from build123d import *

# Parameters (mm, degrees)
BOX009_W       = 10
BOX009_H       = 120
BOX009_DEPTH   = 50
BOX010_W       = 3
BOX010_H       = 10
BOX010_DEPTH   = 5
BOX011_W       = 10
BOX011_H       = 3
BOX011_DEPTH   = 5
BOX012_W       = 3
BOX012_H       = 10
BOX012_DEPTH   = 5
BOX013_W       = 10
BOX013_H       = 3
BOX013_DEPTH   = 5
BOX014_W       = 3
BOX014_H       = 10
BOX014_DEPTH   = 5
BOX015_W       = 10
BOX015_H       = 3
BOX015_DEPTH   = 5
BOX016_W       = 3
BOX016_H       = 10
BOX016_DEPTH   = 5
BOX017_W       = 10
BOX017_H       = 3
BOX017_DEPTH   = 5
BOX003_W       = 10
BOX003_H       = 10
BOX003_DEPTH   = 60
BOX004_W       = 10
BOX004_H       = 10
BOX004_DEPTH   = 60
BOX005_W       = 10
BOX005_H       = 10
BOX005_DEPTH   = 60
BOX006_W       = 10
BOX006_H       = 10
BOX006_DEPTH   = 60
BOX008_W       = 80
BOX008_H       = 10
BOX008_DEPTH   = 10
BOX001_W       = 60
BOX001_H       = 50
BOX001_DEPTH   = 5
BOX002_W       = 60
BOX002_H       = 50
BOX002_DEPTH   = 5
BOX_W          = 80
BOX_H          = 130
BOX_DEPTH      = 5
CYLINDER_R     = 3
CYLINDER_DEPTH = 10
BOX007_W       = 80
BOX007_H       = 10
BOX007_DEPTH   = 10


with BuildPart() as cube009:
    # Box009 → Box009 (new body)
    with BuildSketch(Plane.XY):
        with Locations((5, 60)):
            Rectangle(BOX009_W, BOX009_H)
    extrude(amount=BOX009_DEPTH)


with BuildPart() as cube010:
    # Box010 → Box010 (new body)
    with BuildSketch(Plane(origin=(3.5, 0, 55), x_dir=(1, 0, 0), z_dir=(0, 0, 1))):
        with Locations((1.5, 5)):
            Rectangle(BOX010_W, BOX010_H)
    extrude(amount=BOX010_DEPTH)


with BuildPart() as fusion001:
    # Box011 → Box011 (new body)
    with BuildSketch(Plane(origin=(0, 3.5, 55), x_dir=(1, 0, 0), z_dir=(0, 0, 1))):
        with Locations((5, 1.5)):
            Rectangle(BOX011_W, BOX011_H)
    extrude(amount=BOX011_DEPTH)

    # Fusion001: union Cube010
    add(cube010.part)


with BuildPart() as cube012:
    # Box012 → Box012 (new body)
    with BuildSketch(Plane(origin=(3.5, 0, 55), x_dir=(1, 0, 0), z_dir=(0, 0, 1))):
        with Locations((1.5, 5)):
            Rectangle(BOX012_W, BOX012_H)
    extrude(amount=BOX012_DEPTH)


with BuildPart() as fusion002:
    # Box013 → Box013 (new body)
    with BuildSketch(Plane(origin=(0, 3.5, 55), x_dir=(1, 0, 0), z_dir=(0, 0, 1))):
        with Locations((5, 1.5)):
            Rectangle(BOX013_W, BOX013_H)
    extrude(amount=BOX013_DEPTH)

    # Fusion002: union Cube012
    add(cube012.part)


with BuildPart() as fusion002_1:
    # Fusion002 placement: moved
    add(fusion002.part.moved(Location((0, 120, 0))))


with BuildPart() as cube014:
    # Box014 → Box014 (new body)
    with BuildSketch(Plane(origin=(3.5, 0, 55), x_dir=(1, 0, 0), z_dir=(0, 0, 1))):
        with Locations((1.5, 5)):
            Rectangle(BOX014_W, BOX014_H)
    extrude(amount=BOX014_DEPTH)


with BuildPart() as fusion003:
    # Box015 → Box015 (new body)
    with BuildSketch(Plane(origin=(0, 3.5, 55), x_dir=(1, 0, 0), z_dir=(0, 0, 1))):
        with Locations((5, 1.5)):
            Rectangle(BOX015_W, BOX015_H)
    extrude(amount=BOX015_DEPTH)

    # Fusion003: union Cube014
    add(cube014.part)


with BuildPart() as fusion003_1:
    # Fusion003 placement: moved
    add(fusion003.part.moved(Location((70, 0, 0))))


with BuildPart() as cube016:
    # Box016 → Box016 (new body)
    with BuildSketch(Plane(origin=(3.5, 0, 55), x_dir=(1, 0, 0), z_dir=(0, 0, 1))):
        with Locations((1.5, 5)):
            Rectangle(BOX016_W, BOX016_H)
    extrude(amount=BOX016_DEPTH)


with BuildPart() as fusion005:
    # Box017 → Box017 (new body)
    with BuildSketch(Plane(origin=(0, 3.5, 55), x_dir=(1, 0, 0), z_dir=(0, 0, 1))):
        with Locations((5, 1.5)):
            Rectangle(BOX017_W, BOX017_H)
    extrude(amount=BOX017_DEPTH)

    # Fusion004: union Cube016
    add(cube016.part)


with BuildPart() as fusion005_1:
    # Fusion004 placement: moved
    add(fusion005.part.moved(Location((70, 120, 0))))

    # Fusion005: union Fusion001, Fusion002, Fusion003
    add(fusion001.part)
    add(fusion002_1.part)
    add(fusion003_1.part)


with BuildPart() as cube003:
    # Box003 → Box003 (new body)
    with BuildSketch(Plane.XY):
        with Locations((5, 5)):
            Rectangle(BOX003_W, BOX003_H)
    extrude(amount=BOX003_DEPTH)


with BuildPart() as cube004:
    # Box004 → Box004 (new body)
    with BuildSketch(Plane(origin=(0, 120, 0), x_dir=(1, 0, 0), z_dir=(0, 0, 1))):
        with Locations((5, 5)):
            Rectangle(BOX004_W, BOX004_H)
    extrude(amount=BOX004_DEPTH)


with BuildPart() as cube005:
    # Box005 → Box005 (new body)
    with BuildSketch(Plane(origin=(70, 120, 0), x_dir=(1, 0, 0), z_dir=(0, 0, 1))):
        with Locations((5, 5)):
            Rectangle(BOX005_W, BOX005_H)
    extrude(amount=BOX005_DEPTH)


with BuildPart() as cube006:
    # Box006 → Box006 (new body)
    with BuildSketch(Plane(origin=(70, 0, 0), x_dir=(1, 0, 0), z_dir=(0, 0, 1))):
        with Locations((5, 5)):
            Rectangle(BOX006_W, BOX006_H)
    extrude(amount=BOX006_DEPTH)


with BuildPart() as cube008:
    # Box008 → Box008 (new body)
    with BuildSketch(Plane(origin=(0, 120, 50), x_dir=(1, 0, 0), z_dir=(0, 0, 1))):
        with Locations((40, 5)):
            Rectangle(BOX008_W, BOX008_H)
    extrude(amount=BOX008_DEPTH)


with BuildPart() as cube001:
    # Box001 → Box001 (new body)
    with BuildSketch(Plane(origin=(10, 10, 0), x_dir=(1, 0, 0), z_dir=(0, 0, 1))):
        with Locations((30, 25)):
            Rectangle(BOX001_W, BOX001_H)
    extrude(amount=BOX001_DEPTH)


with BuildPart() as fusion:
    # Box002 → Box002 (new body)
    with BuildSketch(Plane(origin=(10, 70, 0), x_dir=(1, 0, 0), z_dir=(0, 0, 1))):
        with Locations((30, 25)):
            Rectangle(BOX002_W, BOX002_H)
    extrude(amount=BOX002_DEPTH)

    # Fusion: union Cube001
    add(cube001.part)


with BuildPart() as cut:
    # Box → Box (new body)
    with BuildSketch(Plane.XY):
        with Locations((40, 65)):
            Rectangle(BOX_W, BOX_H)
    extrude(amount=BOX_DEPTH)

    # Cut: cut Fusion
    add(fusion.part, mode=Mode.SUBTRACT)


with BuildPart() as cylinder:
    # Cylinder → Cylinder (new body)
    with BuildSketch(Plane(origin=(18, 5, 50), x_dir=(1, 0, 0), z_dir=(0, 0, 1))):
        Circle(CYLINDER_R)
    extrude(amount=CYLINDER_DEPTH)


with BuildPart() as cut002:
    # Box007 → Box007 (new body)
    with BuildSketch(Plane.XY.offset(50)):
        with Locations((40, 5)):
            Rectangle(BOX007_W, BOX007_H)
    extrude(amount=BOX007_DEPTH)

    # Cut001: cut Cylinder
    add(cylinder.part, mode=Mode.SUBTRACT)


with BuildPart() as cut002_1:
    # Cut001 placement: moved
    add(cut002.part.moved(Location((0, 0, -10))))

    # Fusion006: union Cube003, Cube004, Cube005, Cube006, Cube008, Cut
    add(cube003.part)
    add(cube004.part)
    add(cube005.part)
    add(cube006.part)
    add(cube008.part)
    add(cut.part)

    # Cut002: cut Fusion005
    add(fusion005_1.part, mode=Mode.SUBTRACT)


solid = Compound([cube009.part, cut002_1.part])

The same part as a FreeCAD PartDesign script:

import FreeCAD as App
import Part
import Sketcher

V = App.Vector


def add_polygon(sketch, points):
    """Adds a closed chain of lines whose ends are joined by coincident constraints."""
    first, n = sketch.GeometryCount, len(points)
    for a, b in zip(points, points[1:] + points[:1]):
        sketch.addGeometry(Part.LineSegment(App.Vector(*a, 0), App.Vector(*b, 0)), False)
    for i in range(n):
        sketch.addConstraint(Sketcher.Constraint("Coincident", first + i, 2, first + (i + 1) % n, 1))

doc = App.newDocument("Part")
body = doc.addObject("PartDesign::Body", "Body")

sketch1 = doc.addObject("Sketcher::SketchObject", "Sketch")
body.addObject(sketch1)
sketch1.AttachmentSupport = (doc.XY_Plane, [""])
sketch1.MapMode = "FlatFace"
add_polygon(sketch1, [(0, 120), (0, 0), (10, 0), (10, 120)])
sketch1.addConstraint([
    Sketcher.Constraint("Vertical", 0),
    Sketcher.Constraint("Horizontal", 1),
    Sketcher.Constraint("Vertical", 2),
    Sketcher.Constraint("Horizontal", 3),
    Sketcher.Constraint("Coincident", 0, 2, -1, 1),
    Sketcher.Constraint("DistanceX", 1, 1, 1, 2, 10.0),
    Sketcher.Constraint("DistanceY", 0, 2, 0, 1, 120.0),
])
pad1 = doc.addObject("PartDesign::Pad", "Pad")
body.addObject(pad1)
pad1.Profile = sketch1
pad1.Length = 50
body2 = doc.addObject("PartDesign::Body", "Body001")

sketch2 = doc.addObject("Sketcher::SketchObject", "Sketch001")
body2.addObject(sketch2)
sketch2.AttachmentSupport = (doc.getObject("XY_Plane001"), [""])
sketch2.MapMode = "FlatFace"
sketch2.AttachmentOffset = App.Placement(V(0, 0, 55), App.Rotation())
add_polygon(sketch2, [(3.5, 10), (3.5, 0), (6.5, 0), (6.5, 10)])
sketch2.addConstraint([
    Sketcher.Constraint("Vertical", 0),
    Sketcher.Constraint("Horizontal", 1),
    Sketcher.Constraint("Vertical", 2),
    Sketcher.Constraint("Horizontal", 3),
    Sketcher.Constraint("PointOnObject", 0, 2, -1),
    Sketcher.Constraint("DistanceX", 1, 1, 1, 2, 3.0),
    Sketcher.Constraint("DistanceY", 0, 2, 0, 1, 10.0),
    Sketcher.Constraint("DistanceX", -1, 1, 0, 2, 3.5),
])
pad2 = doc.addObject("PartDesign::Pad", "Pad001")
body2.addObject(pad2)
pad2.Profile = sketch2
pad2.Length = 5
body3 = doc.addObject("PartDesign::Body", "Body002")

sketch3 = doc.addObject("Sketcher::SketchObject", "Sketch002")
body3.addObject(sketch3)
sketch3.AttachmentSupport = (doc.getObject("XY_Plane002"), [""])
sketch3.MapMode = "FlatFace"
sketch3.AttachmentOffset = App.Placement(V(0, 0, 55), App.Rotation())
add_polygon(sketch3, [(0, 6.5), (0, 3.5), (10, 3.5), (10, 6.5)])
sketch3.addConstraint([
    Sketcher.Constraint("Vertical", 0),
    Sketcher.Constraint("Horizontal", 1),
    Sketcher.Constraint("Vertical", 2),
    Sketcher.Constraint("Horizontal", 3),
    Sketcher.Constraint("PointOnObject", 0, 2, -2),
    Sketcher.Constraint("DistanceX", 1, 1, 1, 2, 10.0),
    Sketcher.Constraint("DistanceY", 0, 2, 0, 1, 3.0),
    Sketcher.Constraint("DistanceY", -1, 1, 0, 2, 3.5),
])
pad3 = doc.addObject("PartDesign::Pad", "Pad002")
body3.addObject(pad3)
pad3.Profile = sketch3
pad3.Length = 5
doc.recompute()

boolean = doc.addObject("PartDesign::Boolean", "Boolean")
body3.addObject(boolean)
boolean.Type = "Fuse"
boolean.addObjects([body2])
body4 = doc.addObject("PartDesign::Body", "Body003")

sketch4 = doc.addObject("Sketcher::SketchObject", "Sketch003")
body4.addObject(sketch4)
sketch4.AttachmentSupport = (doc.getObject("XY_Plane003"), [""])
sketch4.MapMode = "FlatFace"
sketch4.AttachmentOffset = App.Placement(V(0, 0, 55), App.Rotation())
add_polygon(sketch4, [(3.5, 10), (3.5, 0), (6.5, 0), (6.5, 10)])
sketch4.addConstraint([
    Sketcher.Constraint("Vertical", 0),
    Sketcher.Constraint("Horizontal", 1),
    Sketcher.Constraint("Vertical", 2),
    Sketcher.Constraint("Horizontal", 3),
    Sketcher.Constraint("PointOnObject", 0, 2, -1),
    Sketcher.Constraint("DistanceX", 1, 1, 1, 2, 3.0),
    Sketcher.Constraint("DistanceY", 0, 2, 0, 1, 10.0),
    Sketcher.Constraint("DistanceX", -1, 1, 0, 2, 3.5),
])
pad4 = doc.addObject("PartDesign::Pad", "Pad003")
body4.addObject(pad4)
pad4.Profile = sketch4
pad4.Length = 5
body5 = doc.addObject("PartDesign::Body", "Body004")

sketch5 = doc.addObject("Sketcher::SketchObject", "Sketch004")
body5.addObject(sketch5)
sketch5.AttachmentSupport = (doc.getObject("XY_Plane004"), [""])
sketch5.MapMode = "FlatFace"
sketch5.AttachmentOffset = App.Placement(V(0, 0, 55), App.Rotation())
add_polygon(sketch5, [(0, 6.5), (0, 3.5), (10, 3.5), (10, 6.5)])
sketch5.addConstraint([
    Sketcher.Constraint("Vertical", 0),
    Sketcher.Constraint("Horizontal", 1),
    Sketcher.Constraint("Vertical", 2),
    Sketcher.Constraint("Horizontal", 3),
    Sketcher.Constraint("PointOnObject", 0, 2, -2),
    Sketcher.Constraint("DistanceX", 1, 1, 1, 2, 10.0),
    Sketcher.Constraint("DistanceY", 0, 2, 0, 1, 3.0),
    Sketcher.Constraint("DistanceY", -1, 1, 0, 2, 3.5),
])
pad5 = doc.addObject("PartDesign::Pad", "Pad004")
body5.addObject(pad5)
pad5.Profile = sketch5
pad5.Length = 5
doc.recompute()

boolean2 = doc.addObject("PartDesign::Boolean", "Boolean001")
body5.addObject(boolean2)
boolean2.Type = "Fuse"
boolean2.addObjects([body4])
body6 = doc.addObject("PartDesign::Body", "Body005")
doc.recompute()

body5.Placement = App.Placement(V(0, 120, 0), App.Rotation(V(0, 0, 1), 0))
boolean3 = doc.addObject("PartDesign::Boolean", "Boolean002")
body6.addObject(boolean3)
boolean3.Type = "Fuse"
boolean3.addObjects([body5])
body7 = doc.addObject("PartDesign::Body", "Body006")

sketch6 = doc.addObject("Sketcher::SketchObject", "Sketch005")
body7.addObject(sketch6)
sketch6.AttachmentSupport = (doc.getObject("XY_Plane006"), [""])
sketch6.MapMode = "FlatFace"
sketch6.AttachmentOffset = App.Placement(V(0, 0, 55), App.Rotation())
add_polygon(sketch6, [(3.5, 10), (3.5, 0), (6.5, 0), (6.5, 10)])
sketch6.addConstraint([
    Sketcher.Constraint("Vertical", 0),
    Sketcher.Constraint("Horizontal", 1),
    Sketcher.Constraint("Vertical", 2),
    Sketcher.Constraint("Horizontal", 3),
    Sketcher.Constraint("PointOnObject", 0, 2, -1),
    Sketcher.Constraint("DistanceX", 1, 1, 1, 2, 3.0),
    Sketcher.Constraint("DistanceY", 0, 2, 0, 1, 10.0),
    Sketcher.Constraint("DistanceX", -1, 1, 0, 2, 3.5),
])
pad6 = doc.addObject("PartDesign::Pad", "Pad005")
body7.addObject(pad6)
pad6.Profile = sketch6
pad6.Length = 5
body8 = doc.addObject("PartDesign::Body", "Body007")

sketch7 = doc.addObject("Sketcher::SketchObject", "Sketch006")
body8.addObject(sketch7)
sketch7.AttachmentSupport = (doc.getObject("XY_Plane007"), [""])
sketch7.MapMode = "FlatFace"
sketch7.AttachmentOffset = App.Placement(V(0, 0, 55), App.Rotation())
add_polygon(sketch7, [(0, 6.5), (0, 3.5), (10, 3.5), (10, 6.5)])
sketch7.addConstraint([
    Sketcher.Constraint("Vertical", 0),
    Sketcher.Constraint("Horizontal", 1),
    Sketcher.Constraint("Vertical", 2),
    Sketcher.Constraint("Horizontal", 3),
    Sketcher.Constraint("PointOnObject", 0, 2, -2),
    Sketcher.Constraint("DistanceX", 1, 1, 1, 2, 10.0),
    Sketcher.Constraint("DistanceY", 0, 2, 0, 1, 3.0),
    Sketcher.Constraint("DistanceY", -1, 1, 0, 2, 3.5),
])
pad7 = doc.addObject("PartDesign::Pad", "Pad006")
body8.addObject(pad7)
pad7.Profile = sketch7
pad7.Length = 5
doc.recompute()

boolean4 = doc.addObject("PartDesign::Boolean", "Boolean003")
body8.addObject(boolean4)
boolean4.Type = "Fuse"
boolean4.addObjects([body7])
body9 = doc.addObject("PartDesign::Body", "Body008")
doc.recompute()

body8.Placement = App.Placement(V(70, 0, 0), App.Rotation(V(0, 0, 1), 0))
boolean5 = doc.addObject("PartDesign::Boolean", "Boolean004")
body9.addObject(boolean5)
boolean5.Type = "Fuse"
boolean5.addObjects([body8])
body10 = doc.addObject("PartDesign::Body", "Body009")

sketch8 = doc.addObject("Sketcher::SketchObject", "Sketch007")
body10.addObject(sketch8)
sketch8.AttachmentSupport = (doc.getObject("XY_Plane009"), [""])
sketch8.MapMode = "FlatFace"
sketch8.AttachmentOffset = App.Placement(V(0, 0, 55), App.Rotation())
add_polygon(sketch8, [(3.5, 10), (3.5, 0), (6.5, 0), (6.5, 10)])
sketch8.addConstraint([
    Sketcher.Constraint("Vertical", 0),
    Sketcher.Constraint("Horizontal", 1),
    Sketcher.Constraint("Vertical", 2),
    Sketcher.Constraint("Horizontal", 3),
    Sketcher.Constraint("PointOnObject", 0, 2, -1),
    Sketcher.Constraint("DistanceX", 1, 1, 1, 2, 3.0),
    Sketcher.Constraint("DistanceY", 0, 2, 0, 1, 10.0),
    Sketcher.Constraint("DistanceX", -1, 1, 0, 2, 3.5),
])
pad8 = doc.addObject("PartDesign::Pad", "Pad007")
body10.addObject(pad8)
pad8.Profile = sketch8
pad8.Length = 5
body11 = doc.addObject("PartDesign::Body", "Body010")

sketch9 = doc.addObject("Sketcher::SketchObject", "Sketch008")
body11.addObject(sketch9)
sketch9.AttachmentSupport = (doc.getObject("XY_Plane010"), [""])
sketch9.MapMode = "FlatFace"
sketch9.AttachmentOffset = App.Placement(V(0, 0, 55), App.Rotation())
add_polygon(sketch9, [(0, 6.5), (0, 3.5), (10, 3.5), (10, 6.5)])
sketch9.addConstraint([
    Sketcher.Constraint("Vertical", 0),
    Sketcher.Constraint("Horizontal", 1),
    Sketcher.Constraint("Vertical", 2),
    Sketcher.Constraint("Horizontal", 3),
    Sketcher.Constraint("PointOnObject", 0, 2, -2),
    Sketcher.Constraint("DistanceX", 1, 1, 1, 2, 10.0),
    Sketcher.Constraint("DistanceY", 0, 2, 0, 1, 3.0),
    Sketcher.Constraint("DistanceY", -1, 1, 0, 2, 3.5),
])
pad9 = doc.addObject("PartDesign::Pad", "Pad008")
body11.addObject(pad9)
pad9.Profile = sketch9
pad9.Length = 5
doc.recompute()

boolean6 = doc.addObject("PartDesign::Boolean", "Boolean005")
body11.addObject(boolean6)
boolean6.Type = "Fuse"
boolean6.addObjects([body10])
body12 = doc.addObject("PartDesign::Body", "Body011")
body12.AllowCompound = True
doc.recompute()

body11.Placement = App.Placement(V(70, 120, 0), App.Rotation(V(0, 0, 1), 0))
boolean7 = doc.addObject("PartDesign::Boolean", "Boolean006")
body12.addObject(boolean7)
boolean7.Type = "Fuse"
boolean7.addObjects([body11])
doc.recompute()

boolean8 = doc.addObject("PartDesign::Boolean", "Boolean007")
body12.addObject(boolean8)
boolean8.Type = "Fuse"
boolean8.addObjects([body3])
doc.recompute()

boolean9 = doc.addObject("PartDesign::Boolean", "Boolean008")
body12.addObject(boolean9)
boolean9.Type = "Fuse"
boolean9.addObjects([body6])
doc.recompute()

boolean10 = doc.addObject("PartDesign::Boolean", "Boolean009")
body12.addObject(boolean10)
boolean10.Type = "Fuse"
boolean10.addObjects([body9])
body13 = doc.addObject("PartDesign::Body", "Body012")

sketch10 = doc.addObject("Sketcher::SketchObject", "Sketch009")
body13.addObject(sketch10)
sketch10.AttachmentSupport = (doc.getObject("XY_Plane012"), [""])
sketch10.MapMode = "FlatFace"
add_polygon(sketch10, [(0, 10), (0, 0), (10, 0), (10, 10)])
sketch10.addConstraint([
    Sketcher.Constraint("Vertical", 0),
    Sketcher.Constraint("Horizontal", 1),
    Sketcher.Constraint("Vertical", 2),
    Sketcher.Constraint("Horizontal", 3),
    Sketcher.Constraint("Coincident", 0, 2, -1, 1),
    Sketcher.Constraint("Equal", 3, 0),
    Sketcher.Constraint("DistanceX", 1, 1, 1, 2, 10.0),
])
pad10 = doc.addObject("PartDesign::Pad", "Pad009")
body13.addObject(pad10)
pad10.Profile = sketch10
pad10.Length = 60
body14 = doc.addObject("PartDesign::Body", "Body013")

sketch11 = doc.addObject("Sketcher::SketchObject", "Sketch010")
body14.addObject(sketch11)
sketch11.AttachmentSupport = (doc.getObject("XY_Plane013"), [""])
sketch11.MapMode = "FlatFace"
add_polygon(sketch11, [(0, 130), (0, 120), (10, 120), (10, 130)])
sketch11.addConstraint([
    Sketcher.Constraint("Vertical", 0),
    Sketcher.Constraint("Horizontal", 1),
    Sketcher.Constraint("Vertical", 2),
    Sketcher.Constraint("Horizontal", 3),
    Sketcher.Constraint("PointOnObject", 0, 2, -2),
    Sketcher.Constraint("Equal", 3, 0),
    Sketcher.Constraint("DistanceX", 1, 1, 1, 2, 10.0),
    Sketcher.Constraint("DistanceY", -1, 1, 0, 2, 120.0),
])
pad11 = doc.addObject("PartDesign::Pad", "Pad010")
body14.addObject(pad11)
pad11.Profile = sketch11
pad11.Length = 60
body15 = doc.addObject("PartDesign::Body", "Body014")

sketch12 = doc.addObject("Sketcher::SketchObject", "Sketch011")
body15.addObject(sketch12)
sketch12.AttachmentSupport = (doc.getObject("XY_Plane014"), [""])
sketch12.MapMode = "FlatFace"
add_polygon(sketch12, [(70, 130), (70, 120), (80, 120), (80, 130)])
sketch12.addConstraint([
    Sketcher.Constraint("Vertical", 0),
    Sketcher.Constraint("Horizontal", 1),
    Sketcher.Constraint("Vertical", 2),
    Sketcher.Constraint("Horizontal", 3),
    Sketcher.Constraint("Equal", 3, 0),
    Sketcher.Constraint("DistanceX", 1, 1, 1, 2, 10.0),
    Sketcher.Constraint("DistanceX", -1, 1, 0, 2, 70.0),
    Sketcher.Constraint("DistanceY", -1, 1, 0, 2, 120.0),
])
pad12 = doc.addObject("PartDesign::Pad", "Pad011")
body15.addObject(pad12)
pad12.Profile = sketch12
pad12.Length = 60
body16 = doc.addObject("PartDesign::Body", "Body015")

sketch13 = doc.addObject("Sketcher::SketchObject", "Sketch012")
body16.addObject(sketch13)
sketch13.AttachmentSupport = (doc.getObject("XY_Plane015"), [""])
sketch13.MapMode = "FlatFace"
add_polygon(sketch13, [(70, 10), (70, 0), (80, 0), (80, 10)])
sketch13.addConstraint([
    Sketcher.Constraint("Vertical", 0),
    Sketcher.Constraint("Horizontal", 1),
    Sketcher.Constraint("Vertical", 2),
    Sketcher.Constraint("Horizontal", 3),
    Sketcher.Constraint("PointOnObject", 0, 2, -1),
    Sketcher.Constraint("Equal", 3, 0),
    Sketcher.Constraint("DistanceX", 1, 1, 1, 2, 10.0),
    Sketcher.Constraint("DistanceX", -1, 1, 0, 2, 70.0),
])
pad13 = doc.addObject("PartDesign::Pad", "Pad012")
body16.addObject(pad13)
pad13.Profile = sketch13
pad13.Length = 60
body17 = doc.addObject("PartDesign::Body", "Body016")

sketch14 = doc.addObject("Sketcher::SketchObject", "Sketch013")
body17.addObject(sketch14)
sketch14.AttachmentSupport = (doc.getObject("XY_Plane016"), [""])
sketch14.MapMode = "FlatFace"
sketch14.AttachmentOffset = App.Placement(V(0, 0, 50), App.Rotation())
add_polygon(sketch14, [(0, 130), (0, 120), (80, 120), (80, 130)])
sketch14.addConstraint([
    Sketcher.Constraint("Vertical", 0),
    Sketcher.Constraint("Horizontal", 1),
    Sketcher.Constraint("Vertical", 2),
    Sketcher.Constraint("Horizontal", 3),
    Sketcher.Constraint("PointOnObject", 0, 2, -2),
    Sketcher.Constraint("DistanceX", 1, 1, 1, 2, 80.0),
    Sketcher.Constraint("DistanceY", 0, 2, 0, 1, 10.0),
    Sketcher.Constraint("DistanceY", -1, 1, 0, 2, 120.0),
])
pad14 = doc.addObject("PartDesign::Pad", "Pad013")
body17.addObject(pad14)
pad14.Profile = sketch14
pad14.Length = 10
body18 = doc.addObject("PartDesign::Body", "Body017")

sketch15 = doc.addObject("Sketcher::SketchObject", "Sketch014")
body18.addObject(sketch15)
sketch15.AttachmentSupport = (doc.getObject("XY_Plane017"), [""])
sketch15.MapMode = "FlatFace"
add_polygon(sketch15, [(10, 60), (10, 10), (70, 10), (70, 60)])
sketch15.addConstraint([
    Sketcher.Constraint("Vertical", 0),
    Sketcher.Constraint("Horizontal", 1),
    Sketcher.Constraint("Vertical", 2),
    Sketcher.Constraint("Horizontal", 3),
    Sketcher.Constraint("DistanceX", 1, 1, 1, 2, 60.0),
    Sketcher.Constraint("DistanceY", 0, 2, 0, 1, 50.0),
    Sketcher.Constraint("DistanceX", -1, 1, 0, 2, 10.0),
    Sketcher.Constraint("DistanceY", -1, 1, 0, 2, 10.0),
])
pad15 = doc.addObject("PartDesign::Pad", "Pad014")
body18.addObject(pad15)
pad15.Profile = sketch15
pad15.Length = 5
body19 = doc.addObject("PartDesign::Body", "Body018")
body19.AllowCompound = True

sketch16 = doc.addObject("Sketcher::SketchObject", "Sketch015")
body19.addObject(sketch16)
sketch16.AttachmentSupport = (doc.getObject("XY_Plane018"), [""])
sketch16.MapMode = "FlatFace"
add_polygon(sketch16, [(10, 120), (10, 70), (70, 70), (70, 120)])
sketch16.addConstraint([
    Sketcher.Constraint("Vertical", 0),
    Sketcher.Constraint("Horizontal", 1),
    Sketcher.Constraint("Vertical", 2),
    Sketcher.Constraint("Horizontal", 3),
    Sketcher.Constraint("DistanceX", 1, 1, 1, 2, 60.0),
    Sketcher.Constraint("DistanceY", 0, 2, 0, 1, 50.0),
    Sketcher.Constraint("DistanceX", -1, 1, 0, 2, 10.0),
    Sketcher.Constraint("DistanceY", -1, 1, 0, 2, 70.0),
])
pad16 = doc.addObject("PartDesign::Pad", "Pad015")
body19.addObject(pad16)
pad16.Profile = sketch16
pad16.Length = 5
doc.recompute()

boolean11 = doc.addObject("PartDesign::Boolean", "Boolean010")
body19.addObject(boolean11)
boolean11.Type = "Fuse"
boolean11.addObjects([body18])
body20 = doc.addObject("PartDesign::Body", "Body019")

sketch17 = doc.addObject("Sketcher::SketchObject", "Sketch016")
body20.addObject(sketch17)
sketch17.AttachmentSupport = (doc.getObject("XY_Plane019"), [""])
sketch17.MapMode = "FlatFace"
add_polygon(sketch17, [(0, 130), (0, 0), (80, 0), (80, 130)])
sketch17.addConstraint([
    Sketcher.Constraint("Vertical", 0),
    Sketcher.Constraint("Horizontal", 1),
    Sketcher.Constraint("Vertical", 2),
    Sketcher.Constraint("Horizontal", 3),
    Sketcher.Constraint("Coincident", 0, 2, -1, 1),
    Sketcher.Constraint("DistanceX", 1, 1, 1, 2, 80.0),
    Sketcher.Constraint("DistanceY", 0, 2, 0, 1, 130.0),
])
pad17 = doc.addObject("PartDesign::Pad", "Pad016")
body20.addObject(pad17)
pad17.Profile = sketch17
pad17.Length = 5
doc.recompute()

boolean12 = doc.addObject("PartDesign::Boolean", "Boolean011")
body20.addObject(boolean12)
boolean12.Type = "Cut"
boolean12.addObjects([body19])
body21 = doc.addObject("PartDesign::Body", "Body020")

sketch18 = doc.addObject("Sketcher::SketchObject", "Sketch017")
body21.addObject(sketch18)
sketch18.AttachmentSupport = (doc.getObject("XY_Plane020"), [""])
sketch18.MapMode = "FlatFace"
sketch18.AttachmentOffset = App.Placement(V(0, 0, 50), App.Rotation())
sketch18.addGeometry(Part.Circle(V(18, 5, 0), V(0, 0, 1), 3), False)
sketch18.addConstraint([
    Sketcher.Constraint("Diameter", 0, 6.0),
    Sketcher.Constraint("DistanceX", -1, 1, 0, 3, 18.0),
    Sketcher.Constraint("DistanceY", -1, 1, 0, 3, 5.0),
])
pad18 = doc.addObject("PartDesign::Pad", "Pad017")
body21.addObject(pad18)
pad18.Profile = sketch18
pad18.Length = 10
body22 = doc.addObject("PartDesign::Body", "Body021")

sketch19 = doc.addObject("Sketcher::SketchObject", "Sketch018")
body22.addObject(sketch19)
sketch19.AttachmentSupport = (doc.getObject("XY_Plane021"), [""])
sketch19.MapMode = "FlatFace"
sketch19.AttachmentOffset = App.Placement(V(0, 0, 50), App.Rotation())
add_polygon(sketch19, [(0, 10), (0, 0), (80, 0), (80, 10)])
sketch19.addConstraint([
    Sketcher.Constraint("Vertical", 0),
    Sketcher.Constraint("Horizontal", 1),
    Sketcher.Constraint("Vertical", 2),
    Sketcher.Constraint("Horizontal", 3),
    Sketcher.Constraint("Coincident", 0, 2, -1, 1),
    Sketcher.Constraint("DistanceX", 1, 1, 1, 2, 80.0),
    Sketcher.Constraint("DistanceY", 0, 2, 0, 1, 10.0),
])
pad19 = doc.addObject("PartDesign::Pad", "Pad018")
body22.addObject(pad19)
pad19.Profile = sketch19
pad19.Length = 10
doc.recompute()

boolean13 = doc.addObject("PartDesign::Boolean", "Boolean012")
body22.addObject(boolean13)
boolean13.Type = "Cut"
boolean13.addObjects([body21])
body23 = doc.addObject("PartDesign::Body", "Body022")
body23.AllowCompound = True
doc.recompute()

body22.Placement = App.Placement(V(0, 0, -10), App.Rotation(V(0, 0, 1), 0))
boolean14 = doc.addObject("PartDesign::Boolean", "Boolean013")
body23.addObject(boolean14)
boolean14.Type = "Fuse"
boolean14.addObjects([body22])
doc.recompute()

boolean15 = doc.addObject("PartDesign::Boolean", "Boolean014")
body23.addObject(boolean15)
boolean15.Type = "Fuse"
boolean15.addObjects([body13])
doc.recompute()

boolean16 = doc.addObject("PartDesign::Boolean", "Boolean015")
body23.addObject(boolean16)
boolean16.Type = "Fuse"
boolean16.addObjects([body14])
doc.recompute()

boolean17 = doc.addObject("PartDesign::Boolean", "Boolean016")
body23.addObject(boolean17)
boolean17.Type = "Fuse"
boolean17.addObjects([body15])
doc.recompute()

boolean18 = doc.addObject("PartDesign::Boolean", "Boolean017")
body23.addObject(boolean18)
boolean18.Type = "Fuse"
boolean18.addObjects([body16])
doc.recompute()

boolean19 = doc.addObject("PartDesign::Boolean", "Boolean018")
body23.addObject(boolean19)
boolean19.Type = "Fuse"
boolean19.addObjects([body17])
doc.recompute()

boolean20 = doc.addObject("PartDesign::Boolean", "Boolean019")
body23.addObject(boolean20)
boolean20.Type = "Fuse"
boolean20.addObjects([body20])
doc.recompute()

boolean21 = doc.addObject("PartDesign::Boolean", "Boolean020")
body23.addObject(boolean21)
boolean21.Type = "Cut"
boolean21.addObjects([body12])

doc.recompute()
